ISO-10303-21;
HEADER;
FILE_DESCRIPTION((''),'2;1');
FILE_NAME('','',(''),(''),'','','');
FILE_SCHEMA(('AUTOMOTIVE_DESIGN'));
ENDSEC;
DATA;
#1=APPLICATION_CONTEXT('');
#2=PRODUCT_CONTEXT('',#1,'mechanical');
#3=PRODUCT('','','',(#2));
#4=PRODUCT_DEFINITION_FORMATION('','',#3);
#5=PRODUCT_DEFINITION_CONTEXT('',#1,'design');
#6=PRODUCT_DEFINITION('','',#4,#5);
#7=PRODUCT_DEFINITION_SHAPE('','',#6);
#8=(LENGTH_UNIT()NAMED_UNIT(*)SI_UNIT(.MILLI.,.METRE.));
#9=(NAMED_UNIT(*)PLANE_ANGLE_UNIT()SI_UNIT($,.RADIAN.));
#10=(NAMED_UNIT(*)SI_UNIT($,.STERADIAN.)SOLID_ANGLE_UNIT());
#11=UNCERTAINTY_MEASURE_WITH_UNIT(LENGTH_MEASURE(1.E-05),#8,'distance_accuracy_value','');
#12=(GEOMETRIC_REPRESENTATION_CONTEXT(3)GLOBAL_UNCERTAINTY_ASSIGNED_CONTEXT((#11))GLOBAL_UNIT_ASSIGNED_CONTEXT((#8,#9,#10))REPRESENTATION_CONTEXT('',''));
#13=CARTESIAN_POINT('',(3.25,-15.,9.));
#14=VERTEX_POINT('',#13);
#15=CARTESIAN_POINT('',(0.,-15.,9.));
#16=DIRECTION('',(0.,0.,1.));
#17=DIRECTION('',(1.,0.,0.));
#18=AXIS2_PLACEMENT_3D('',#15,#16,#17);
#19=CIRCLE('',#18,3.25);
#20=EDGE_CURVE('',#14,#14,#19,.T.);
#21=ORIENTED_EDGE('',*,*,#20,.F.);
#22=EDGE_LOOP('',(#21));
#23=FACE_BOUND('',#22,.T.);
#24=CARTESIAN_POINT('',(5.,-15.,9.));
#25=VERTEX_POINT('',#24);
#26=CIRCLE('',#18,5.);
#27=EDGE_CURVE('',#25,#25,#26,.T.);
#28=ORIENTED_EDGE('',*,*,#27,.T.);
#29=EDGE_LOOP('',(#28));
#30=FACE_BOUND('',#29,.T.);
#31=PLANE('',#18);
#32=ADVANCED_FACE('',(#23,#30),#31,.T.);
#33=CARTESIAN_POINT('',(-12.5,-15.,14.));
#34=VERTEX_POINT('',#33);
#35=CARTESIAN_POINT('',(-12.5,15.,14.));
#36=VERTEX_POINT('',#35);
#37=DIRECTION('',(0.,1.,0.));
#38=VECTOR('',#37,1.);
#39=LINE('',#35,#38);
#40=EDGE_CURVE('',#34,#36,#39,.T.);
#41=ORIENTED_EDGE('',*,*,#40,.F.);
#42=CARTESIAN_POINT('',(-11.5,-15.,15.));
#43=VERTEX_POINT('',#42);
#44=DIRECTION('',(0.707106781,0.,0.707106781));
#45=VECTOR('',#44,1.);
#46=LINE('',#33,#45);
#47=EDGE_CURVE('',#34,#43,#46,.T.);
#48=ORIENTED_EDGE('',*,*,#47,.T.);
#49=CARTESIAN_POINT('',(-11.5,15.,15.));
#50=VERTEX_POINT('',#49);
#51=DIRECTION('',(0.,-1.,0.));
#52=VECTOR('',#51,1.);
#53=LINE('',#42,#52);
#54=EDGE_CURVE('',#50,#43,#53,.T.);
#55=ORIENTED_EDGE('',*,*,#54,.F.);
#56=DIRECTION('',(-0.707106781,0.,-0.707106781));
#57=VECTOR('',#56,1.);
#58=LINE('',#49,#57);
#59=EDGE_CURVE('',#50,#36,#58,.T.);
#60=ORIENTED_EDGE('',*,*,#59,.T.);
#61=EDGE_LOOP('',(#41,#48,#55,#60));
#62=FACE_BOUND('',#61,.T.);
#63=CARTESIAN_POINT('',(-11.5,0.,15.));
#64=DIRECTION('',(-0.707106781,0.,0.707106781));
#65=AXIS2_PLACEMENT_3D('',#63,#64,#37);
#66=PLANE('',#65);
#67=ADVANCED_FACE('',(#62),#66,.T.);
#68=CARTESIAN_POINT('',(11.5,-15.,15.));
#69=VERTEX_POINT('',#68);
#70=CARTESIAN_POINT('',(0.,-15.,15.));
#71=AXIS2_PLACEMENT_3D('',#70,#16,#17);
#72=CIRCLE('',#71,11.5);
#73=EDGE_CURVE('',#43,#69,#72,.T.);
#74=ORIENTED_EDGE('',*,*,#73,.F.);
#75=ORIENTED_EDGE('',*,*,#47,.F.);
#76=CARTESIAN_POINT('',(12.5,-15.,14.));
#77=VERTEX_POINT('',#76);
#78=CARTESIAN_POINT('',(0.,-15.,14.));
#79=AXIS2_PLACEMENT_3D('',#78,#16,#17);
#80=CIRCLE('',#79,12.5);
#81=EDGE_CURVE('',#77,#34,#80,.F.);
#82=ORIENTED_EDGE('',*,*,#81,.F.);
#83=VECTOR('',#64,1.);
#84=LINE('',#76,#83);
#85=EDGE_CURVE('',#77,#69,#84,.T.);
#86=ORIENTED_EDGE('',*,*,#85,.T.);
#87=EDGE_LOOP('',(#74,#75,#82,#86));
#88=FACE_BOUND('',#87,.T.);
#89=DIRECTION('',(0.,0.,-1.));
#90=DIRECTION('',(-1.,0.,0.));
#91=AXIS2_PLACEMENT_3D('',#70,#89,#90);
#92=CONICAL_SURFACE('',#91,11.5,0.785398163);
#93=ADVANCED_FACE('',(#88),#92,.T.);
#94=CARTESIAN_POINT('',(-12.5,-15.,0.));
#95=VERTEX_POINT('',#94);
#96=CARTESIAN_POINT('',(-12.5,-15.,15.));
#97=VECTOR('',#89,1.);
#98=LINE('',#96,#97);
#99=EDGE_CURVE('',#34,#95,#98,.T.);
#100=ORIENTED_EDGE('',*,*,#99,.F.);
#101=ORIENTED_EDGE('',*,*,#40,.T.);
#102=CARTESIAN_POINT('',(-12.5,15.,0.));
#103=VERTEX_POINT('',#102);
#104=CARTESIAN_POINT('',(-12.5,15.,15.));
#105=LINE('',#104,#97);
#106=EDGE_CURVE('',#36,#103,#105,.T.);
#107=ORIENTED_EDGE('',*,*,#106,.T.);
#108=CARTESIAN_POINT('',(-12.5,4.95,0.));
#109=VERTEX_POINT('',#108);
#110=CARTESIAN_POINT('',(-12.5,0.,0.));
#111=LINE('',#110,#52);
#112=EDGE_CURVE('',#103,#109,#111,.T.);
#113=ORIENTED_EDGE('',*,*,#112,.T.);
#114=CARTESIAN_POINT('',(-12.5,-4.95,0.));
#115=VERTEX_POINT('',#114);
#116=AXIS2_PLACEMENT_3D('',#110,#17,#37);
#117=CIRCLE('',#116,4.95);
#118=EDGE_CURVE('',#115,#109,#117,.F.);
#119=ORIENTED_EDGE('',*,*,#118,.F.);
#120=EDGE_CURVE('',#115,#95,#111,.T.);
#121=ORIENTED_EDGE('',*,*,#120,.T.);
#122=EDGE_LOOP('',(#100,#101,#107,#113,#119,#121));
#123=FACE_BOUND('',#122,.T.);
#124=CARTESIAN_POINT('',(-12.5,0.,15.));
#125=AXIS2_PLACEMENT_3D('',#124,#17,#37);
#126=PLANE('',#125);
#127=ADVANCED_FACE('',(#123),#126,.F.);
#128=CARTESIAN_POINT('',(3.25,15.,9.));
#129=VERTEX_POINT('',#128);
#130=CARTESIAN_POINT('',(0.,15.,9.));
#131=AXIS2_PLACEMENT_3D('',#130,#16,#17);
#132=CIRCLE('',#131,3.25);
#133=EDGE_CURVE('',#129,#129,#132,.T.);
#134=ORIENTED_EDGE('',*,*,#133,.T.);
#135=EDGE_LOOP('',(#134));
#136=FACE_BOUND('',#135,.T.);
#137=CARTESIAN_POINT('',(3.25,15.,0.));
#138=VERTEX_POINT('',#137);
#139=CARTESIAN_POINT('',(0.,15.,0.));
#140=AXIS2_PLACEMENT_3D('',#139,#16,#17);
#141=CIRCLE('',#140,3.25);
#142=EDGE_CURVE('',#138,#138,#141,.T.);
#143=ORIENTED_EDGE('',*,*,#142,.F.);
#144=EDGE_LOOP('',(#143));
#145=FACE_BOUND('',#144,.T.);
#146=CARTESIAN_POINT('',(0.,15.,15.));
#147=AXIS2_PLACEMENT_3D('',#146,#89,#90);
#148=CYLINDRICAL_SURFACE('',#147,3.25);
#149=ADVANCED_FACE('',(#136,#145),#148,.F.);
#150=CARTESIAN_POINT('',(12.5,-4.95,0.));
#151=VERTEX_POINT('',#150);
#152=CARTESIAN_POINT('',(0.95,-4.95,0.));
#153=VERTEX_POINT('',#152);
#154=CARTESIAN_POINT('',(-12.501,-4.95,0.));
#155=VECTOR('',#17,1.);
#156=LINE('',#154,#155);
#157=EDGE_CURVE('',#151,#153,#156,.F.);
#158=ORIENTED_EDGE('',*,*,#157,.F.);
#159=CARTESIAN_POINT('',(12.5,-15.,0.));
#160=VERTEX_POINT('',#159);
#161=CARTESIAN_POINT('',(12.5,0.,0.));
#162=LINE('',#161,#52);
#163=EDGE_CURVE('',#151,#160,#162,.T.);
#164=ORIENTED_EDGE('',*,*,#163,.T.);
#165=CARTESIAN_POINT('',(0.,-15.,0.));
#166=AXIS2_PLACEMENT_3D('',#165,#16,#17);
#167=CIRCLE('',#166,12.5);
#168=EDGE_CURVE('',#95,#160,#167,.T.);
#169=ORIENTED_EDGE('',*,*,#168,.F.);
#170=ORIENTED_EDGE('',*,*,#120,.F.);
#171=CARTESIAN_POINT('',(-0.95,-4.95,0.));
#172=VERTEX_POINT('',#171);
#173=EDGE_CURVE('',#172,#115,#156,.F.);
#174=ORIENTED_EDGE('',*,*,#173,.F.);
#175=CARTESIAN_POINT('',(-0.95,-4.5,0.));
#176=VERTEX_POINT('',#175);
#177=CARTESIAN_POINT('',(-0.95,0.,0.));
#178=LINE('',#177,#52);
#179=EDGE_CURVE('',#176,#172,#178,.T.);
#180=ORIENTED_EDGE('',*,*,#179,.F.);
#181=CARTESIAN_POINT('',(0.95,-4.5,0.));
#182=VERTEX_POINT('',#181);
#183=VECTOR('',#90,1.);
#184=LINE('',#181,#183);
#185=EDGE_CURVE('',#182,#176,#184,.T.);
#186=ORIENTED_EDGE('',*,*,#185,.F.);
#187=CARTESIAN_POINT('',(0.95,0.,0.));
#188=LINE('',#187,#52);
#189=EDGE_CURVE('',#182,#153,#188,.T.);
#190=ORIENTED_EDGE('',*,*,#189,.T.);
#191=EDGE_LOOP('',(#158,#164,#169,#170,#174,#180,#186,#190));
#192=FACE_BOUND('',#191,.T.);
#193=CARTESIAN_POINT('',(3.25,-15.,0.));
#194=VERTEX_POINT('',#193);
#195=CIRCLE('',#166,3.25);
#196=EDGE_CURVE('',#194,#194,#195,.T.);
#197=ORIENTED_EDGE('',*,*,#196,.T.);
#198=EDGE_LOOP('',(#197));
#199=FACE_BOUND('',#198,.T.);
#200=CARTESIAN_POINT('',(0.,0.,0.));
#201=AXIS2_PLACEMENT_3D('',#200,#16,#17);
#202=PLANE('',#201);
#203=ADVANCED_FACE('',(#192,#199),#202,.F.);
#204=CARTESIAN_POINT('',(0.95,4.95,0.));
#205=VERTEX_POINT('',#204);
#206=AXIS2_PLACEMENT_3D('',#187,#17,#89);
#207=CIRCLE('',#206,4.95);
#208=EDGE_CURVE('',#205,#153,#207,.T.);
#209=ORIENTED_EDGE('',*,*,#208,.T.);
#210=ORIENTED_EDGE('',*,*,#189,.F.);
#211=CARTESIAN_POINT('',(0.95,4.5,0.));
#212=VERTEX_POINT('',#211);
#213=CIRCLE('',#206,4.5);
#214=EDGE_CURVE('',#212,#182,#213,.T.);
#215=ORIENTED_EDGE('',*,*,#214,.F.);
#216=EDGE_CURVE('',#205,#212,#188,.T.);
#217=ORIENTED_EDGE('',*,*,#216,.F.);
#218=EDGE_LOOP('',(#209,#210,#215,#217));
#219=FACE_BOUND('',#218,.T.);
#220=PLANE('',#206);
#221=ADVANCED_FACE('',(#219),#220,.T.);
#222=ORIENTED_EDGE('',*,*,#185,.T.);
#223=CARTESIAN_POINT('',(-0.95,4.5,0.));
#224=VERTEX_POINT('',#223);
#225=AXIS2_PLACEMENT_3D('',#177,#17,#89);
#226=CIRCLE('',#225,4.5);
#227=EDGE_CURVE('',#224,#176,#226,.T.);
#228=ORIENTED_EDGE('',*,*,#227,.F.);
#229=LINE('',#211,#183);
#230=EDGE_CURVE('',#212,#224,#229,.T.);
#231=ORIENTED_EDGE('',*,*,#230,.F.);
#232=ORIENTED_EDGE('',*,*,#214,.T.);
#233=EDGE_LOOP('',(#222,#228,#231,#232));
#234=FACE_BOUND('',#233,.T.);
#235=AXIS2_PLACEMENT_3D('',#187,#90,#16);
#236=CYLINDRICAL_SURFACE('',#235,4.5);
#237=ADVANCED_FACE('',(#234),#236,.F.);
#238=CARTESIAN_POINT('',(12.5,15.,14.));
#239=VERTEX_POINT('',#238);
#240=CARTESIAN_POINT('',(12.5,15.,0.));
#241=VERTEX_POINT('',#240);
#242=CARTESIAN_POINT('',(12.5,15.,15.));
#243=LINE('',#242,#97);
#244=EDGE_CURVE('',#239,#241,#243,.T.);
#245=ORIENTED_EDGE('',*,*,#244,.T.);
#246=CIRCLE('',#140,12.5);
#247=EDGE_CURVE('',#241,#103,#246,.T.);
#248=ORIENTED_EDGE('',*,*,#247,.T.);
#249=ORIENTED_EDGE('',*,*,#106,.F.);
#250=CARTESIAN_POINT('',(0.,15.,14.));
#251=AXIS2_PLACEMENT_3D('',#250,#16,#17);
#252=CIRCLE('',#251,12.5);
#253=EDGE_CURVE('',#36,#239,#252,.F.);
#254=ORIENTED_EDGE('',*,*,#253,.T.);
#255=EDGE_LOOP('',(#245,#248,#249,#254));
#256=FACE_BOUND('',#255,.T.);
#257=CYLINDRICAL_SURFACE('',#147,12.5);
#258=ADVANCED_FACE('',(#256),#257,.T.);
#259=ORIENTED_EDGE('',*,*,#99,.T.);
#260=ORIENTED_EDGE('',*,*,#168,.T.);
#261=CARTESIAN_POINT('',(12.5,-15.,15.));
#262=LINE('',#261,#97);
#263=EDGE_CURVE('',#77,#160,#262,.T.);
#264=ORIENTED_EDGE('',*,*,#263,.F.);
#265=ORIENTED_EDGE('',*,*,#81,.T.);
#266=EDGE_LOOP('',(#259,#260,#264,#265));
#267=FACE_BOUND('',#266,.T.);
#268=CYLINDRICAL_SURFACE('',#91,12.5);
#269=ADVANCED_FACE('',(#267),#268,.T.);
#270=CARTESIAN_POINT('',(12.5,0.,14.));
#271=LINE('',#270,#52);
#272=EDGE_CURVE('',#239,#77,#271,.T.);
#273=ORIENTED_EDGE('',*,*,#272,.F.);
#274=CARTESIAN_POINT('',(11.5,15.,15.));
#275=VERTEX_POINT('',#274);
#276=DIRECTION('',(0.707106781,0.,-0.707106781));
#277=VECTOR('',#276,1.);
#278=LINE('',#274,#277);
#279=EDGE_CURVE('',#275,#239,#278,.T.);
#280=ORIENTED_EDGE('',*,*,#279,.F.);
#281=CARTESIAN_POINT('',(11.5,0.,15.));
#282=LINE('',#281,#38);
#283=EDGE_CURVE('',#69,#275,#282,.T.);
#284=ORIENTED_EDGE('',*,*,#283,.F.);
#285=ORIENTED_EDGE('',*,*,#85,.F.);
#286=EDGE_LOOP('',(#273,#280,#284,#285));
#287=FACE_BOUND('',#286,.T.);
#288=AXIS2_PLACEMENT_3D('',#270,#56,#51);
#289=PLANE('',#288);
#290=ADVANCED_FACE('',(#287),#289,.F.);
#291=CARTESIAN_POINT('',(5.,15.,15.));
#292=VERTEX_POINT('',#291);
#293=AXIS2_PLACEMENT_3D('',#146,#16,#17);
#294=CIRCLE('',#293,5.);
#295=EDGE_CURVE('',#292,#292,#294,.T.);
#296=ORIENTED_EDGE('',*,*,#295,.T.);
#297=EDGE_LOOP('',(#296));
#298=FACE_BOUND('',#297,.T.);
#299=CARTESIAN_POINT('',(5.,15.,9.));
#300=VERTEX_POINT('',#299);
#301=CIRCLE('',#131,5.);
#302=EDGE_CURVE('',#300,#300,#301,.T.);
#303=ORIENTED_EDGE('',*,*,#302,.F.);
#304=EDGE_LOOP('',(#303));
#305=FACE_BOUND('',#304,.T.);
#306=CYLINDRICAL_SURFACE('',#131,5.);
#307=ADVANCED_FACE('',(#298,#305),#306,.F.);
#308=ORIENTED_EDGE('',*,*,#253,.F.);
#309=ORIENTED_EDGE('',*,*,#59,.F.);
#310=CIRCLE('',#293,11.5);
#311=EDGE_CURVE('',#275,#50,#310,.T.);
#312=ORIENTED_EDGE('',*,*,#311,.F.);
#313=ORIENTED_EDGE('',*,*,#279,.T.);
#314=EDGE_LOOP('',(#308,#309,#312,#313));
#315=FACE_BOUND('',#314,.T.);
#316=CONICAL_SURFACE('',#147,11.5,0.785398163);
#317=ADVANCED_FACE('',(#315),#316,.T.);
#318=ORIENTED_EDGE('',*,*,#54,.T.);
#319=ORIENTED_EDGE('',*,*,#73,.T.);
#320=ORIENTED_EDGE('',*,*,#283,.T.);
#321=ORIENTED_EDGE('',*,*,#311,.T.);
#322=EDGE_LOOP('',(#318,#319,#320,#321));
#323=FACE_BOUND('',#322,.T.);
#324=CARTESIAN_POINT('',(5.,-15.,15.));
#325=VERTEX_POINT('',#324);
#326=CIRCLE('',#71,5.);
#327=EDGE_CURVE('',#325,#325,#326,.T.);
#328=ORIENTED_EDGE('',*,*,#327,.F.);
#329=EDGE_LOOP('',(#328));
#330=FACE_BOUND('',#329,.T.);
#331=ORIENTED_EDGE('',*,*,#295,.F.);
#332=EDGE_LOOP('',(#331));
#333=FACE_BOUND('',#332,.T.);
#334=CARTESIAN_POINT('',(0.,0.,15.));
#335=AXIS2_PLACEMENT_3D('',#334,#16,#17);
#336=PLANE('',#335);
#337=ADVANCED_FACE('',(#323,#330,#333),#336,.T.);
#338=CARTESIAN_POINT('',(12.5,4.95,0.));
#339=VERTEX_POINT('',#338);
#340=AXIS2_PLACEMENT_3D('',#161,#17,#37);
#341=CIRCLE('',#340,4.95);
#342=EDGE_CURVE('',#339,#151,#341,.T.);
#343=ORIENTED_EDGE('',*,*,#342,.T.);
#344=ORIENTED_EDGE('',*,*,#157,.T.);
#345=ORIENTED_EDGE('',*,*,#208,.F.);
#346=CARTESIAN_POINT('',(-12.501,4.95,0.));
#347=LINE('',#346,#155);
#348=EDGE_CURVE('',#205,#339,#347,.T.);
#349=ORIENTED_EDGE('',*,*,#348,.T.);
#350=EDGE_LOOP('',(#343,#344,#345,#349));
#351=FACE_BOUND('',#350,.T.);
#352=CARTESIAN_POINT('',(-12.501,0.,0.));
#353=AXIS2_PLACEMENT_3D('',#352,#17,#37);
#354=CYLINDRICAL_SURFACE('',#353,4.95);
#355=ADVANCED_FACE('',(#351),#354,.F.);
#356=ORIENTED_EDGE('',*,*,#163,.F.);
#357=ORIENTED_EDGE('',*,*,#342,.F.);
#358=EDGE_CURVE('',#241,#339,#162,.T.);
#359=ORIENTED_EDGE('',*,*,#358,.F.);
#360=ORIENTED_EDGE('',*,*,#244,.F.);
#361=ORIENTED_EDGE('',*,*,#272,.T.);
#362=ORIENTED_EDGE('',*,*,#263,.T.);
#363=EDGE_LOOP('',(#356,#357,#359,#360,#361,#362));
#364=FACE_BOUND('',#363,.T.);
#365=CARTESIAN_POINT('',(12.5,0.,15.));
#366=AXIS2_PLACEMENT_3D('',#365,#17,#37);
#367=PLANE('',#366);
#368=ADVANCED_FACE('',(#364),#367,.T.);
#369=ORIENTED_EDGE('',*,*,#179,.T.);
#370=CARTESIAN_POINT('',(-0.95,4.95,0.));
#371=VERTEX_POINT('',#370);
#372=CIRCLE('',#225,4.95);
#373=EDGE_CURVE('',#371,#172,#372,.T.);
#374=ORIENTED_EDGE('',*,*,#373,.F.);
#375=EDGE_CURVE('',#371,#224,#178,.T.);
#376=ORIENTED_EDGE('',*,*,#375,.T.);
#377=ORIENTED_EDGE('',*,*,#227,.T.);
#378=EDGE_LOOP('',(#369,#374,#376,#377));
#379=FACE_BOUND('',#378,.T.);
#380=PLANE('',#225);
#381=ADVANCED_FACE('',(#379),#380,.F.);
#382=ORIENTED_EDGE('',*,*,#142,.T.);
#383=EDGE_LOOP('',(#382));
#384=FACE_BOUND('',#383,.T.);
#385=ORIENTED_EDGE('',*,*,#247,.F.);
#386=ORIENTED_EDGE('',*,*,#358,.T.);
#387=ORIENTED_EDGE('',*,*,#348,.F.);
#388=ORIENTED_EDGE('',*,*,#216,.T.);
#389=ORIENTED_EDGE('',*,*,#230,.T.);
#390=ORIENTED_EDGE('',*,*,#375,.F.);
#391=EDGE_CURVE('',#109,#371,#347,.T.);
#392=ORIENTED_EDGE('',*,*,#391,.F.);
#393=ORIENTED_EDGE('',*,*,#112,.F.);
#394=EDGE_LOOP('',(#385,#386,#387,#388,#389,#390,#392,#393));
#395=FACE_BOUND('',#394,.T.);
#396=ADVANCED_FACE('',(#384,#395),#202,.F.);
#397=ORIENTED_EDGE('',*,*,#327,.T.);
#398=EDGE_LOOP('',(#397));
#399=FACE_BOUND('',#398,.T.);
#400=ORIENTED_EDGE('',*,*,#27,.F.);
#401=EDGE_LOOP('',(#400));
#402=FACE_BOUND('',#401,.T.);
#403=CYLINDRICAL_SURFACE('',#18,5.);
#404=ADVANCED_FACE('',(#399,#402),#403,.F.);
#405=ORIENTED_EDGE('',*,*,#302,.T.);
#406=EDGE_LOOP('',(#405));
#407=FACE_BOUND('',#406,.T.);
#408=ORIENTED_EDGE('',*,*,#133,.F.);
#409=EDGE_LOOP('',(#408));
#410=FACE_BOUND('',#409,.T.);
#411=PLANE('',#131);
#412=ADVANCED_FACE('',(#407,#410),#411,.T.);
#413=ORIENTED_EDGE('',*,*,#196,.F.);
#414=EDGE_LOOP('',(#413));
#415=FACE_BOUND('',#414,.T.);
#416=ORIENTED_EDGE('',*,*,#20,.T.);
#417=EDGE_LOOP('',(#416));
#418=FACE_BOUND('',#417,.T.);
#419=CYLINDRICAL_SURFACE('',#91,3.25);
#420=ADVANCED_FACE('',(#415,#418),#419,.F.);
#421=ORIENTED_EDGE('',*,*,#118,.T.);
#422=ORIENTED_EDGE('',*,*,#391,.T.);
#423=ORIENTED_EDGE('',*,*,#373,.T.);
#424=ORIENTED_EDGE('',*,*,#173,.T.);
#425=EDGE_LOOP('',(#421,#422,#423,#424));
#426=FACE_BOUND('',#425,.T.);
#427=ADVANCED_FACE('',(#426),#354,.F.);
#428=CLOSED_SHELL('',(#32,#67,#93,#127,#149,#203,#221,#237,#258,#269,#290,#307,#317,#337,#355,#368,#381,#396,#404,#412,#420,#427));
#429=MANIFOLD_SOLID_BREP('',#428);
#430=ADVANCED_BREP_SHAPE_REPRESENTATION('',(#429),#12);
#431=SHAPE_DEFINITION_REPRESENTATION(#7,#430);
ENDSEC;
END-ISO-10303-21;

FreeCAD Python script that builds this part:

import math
import FreeCAD as App
import Part
import Sketcher
from FreeCAD import Vector


def edges_at(feature, points):
    """Names of the edges that pass closest to the given points."""
    edges = feature.Shape.Edges
    near = lambda p: min(range(len(edges)), key=lambda i: edges[i].distToShape(Part.Vertex(*p))[0])
    return sorted({f"Edge{near(p) + 1}" for p in points})

doc = App.newDocument("Part")
params = doc.addObject("Spreadsheet::Sheet", "Params")
for row, (alias, value) in enumerate([
    ("sketch1_diameter", "6.5 mm"),
    ("sketch1_radius", "12.5 mm"),
    ("sketch1_height", "30 mm"),
    ("pad1_length", "15 mm"),
    ("sketch2_diameter", "9.9 mm"),
    ("chamfer_size", "1 mm"),
    ("sketch3_diameter", "10 mm"),
    ("pocket2_length", "6 mm"),
    ("sketch4_radius", "4.5 mm"),
    ("sketch4_radius2", "4.95 mm"),
    ("pad2_length", "1.9 mm"),
], start=1):
    params.set(f"A{row}", alias)
    params.set(f"B{row}", "=" + value)
    params.setAlias(f"B{row}", alias)

body = doc.addObject("PartDesign::Body", "Body")

sketch1 = body.newObject("Sketcher::SketchObject", "Sketch")
sketch1.AttachmentSupport = (doc.getObject("XY_Plane"), [""])
sketch1.MapMode = "FlatFace"
sketch1.addGeometry(Part.LineSegment(Vector(-12.5, 15, 0), Vector(-12.5, -15, 0)), False)
sketch1.addGeometry(Part.ArcOfCircle(Part.Circle(Vector(0, -15, 0), Vector(0, 0, 1), 12.5), math.radians(180), math.radians(360)), False)
sketch1.addGeometry(Part.LineSegment(Vector(12.5, -15, 0), Vector(12.5, 15, 0)), False)
sketch1.addGeometry(Part.ArcOfCircle(Part.Circle(Vector(0, 15, 0), Vector(0, 0, 1), 12.5), math.radians(0), math.radians(180)), False)
sketch1.addGeometry(Part.Circle(Vector(0, -15, 0), Vector(0, 0, 1), 3.2), False)
sketch1.addGeometry(Part.Circle(Vector(0, 15, 0), Vector(0, 0, 1), 3.2), False)
sketch1.addConstraint(Sketcher.Constraint("Tangent", 0, 2, 1, 1))
sketch1.addConstraint(Sketcher.Constraint("Tangent", 1, 2, 2, 1))
sketch1.addConstraint(Sketcher.Constraint("Tangent", 2, 2, 3, 1))
sketch1.addConstraint(Sketcher.Constraint("Tangent", 3, 2, 0, 1))
sketch1.addConstraint(Sketcher.Constraint("Vertical", 0))
sketch1.addConstraint(Sketcher.Constraint("Vertical", 2))
sketch1.addConstraint(Sketcher.Constraint("Coincident", 4, 3, 1, 3))
sketch1.addConstraint(Sketcher.Constraint("Coincident", 5, 3, 3, 3))
sketch1.addConstraint(Sketcher.Constraint("Equal", 4, 5))
sketch1.addConstraint(Sketcher.Constraint("Symmetric", 1, 3, 3, 3, -1, 1))
sketch1.addConstraint(Sketcher.Constraint("Diameter", 4, 6.5))
sketch1.addConstraint(Sketcher.Constraint("Radius", 1, 12.5))
sketch1.addConstraint(Sketcher.Constraint("DistanceY", 0, 2, 0, 1, 30.0))
sketch1.setExpression("Constraints[10]", "Params.sketch1_diameter")
sketch1.setExpression("Constraints[11]", "Params.sketch1_radius")
sketch1.setExpression("Constraints[12]", "Params.sketch1_height")
pad1 = body.newObject("PartDesign::Pad", "Pad")
pad1.Profile = sketch1
pad1.setExpression("Length", "Params.pad1_length")

sketch2 = body.newObject("Sketcher::SketchObject", "Sketch001")
sketch2.AttachmentSupport = (doc.getObject("YZ_Plane"), [""])
sketch2.MapMode = "FlatFace"
sketch2.AttachmentOffset = App.Placement(Vector(0, 0, 12.5), App.Rotation())
sketch2.addGeometry(Part.Circle(Vector(0, 0, 0), Vector(0, 0, 1), 5), False)
sketch2.addConstraint(Sketcher.Constraint("Coincident", 0, 3, -1, 1))
sketch2.addConstraint(Sketcher.Constraint("Diameter", 0, 9.9))
sketch2.setExpression("Constraints[1]", "Params.sketch2_diameter")
pocket1 = body.newObject("PartDesign::Pocket", "Pocket")
pocket1.Profile = sketch2
pocket1.Type = "UpToFirst"
doc.recompute()

chamfer = body.newObject("PartDesign::Chamfer", "Chamfer")
chamfer.Base = (pocket1, edges_at(pocket1, [
    (-12.5, 0, 15),
    (0, -27.5, 15),
    (12.5, 0, 15),
    (0, 27.5, 15),
]))
chamfer.setExpression("Size", "Params.chamfer_size")

sketch3 = body.newObject("Sketcher::SketchObject", "Sketch002")
sketch3.AttachmentSupport = (doc.getObject("XY_Plane"), [""])
sketch3.MapMode = "FlatFace"
sketch3.AttachmentOffset = App.Placement(Vector(0, 0, 15), App.Rotation())
sketch3.addGeometry(Part.Circle(Vector(0, 15, 0), Vector(0, 0, 1), 5), False)
sketch3.addGeometry(Part.Circle(Vector(0, -15, 0), Vector(0, 0, 1), 5), False)
sketch3.addConstraint(Sketcher.Constraint("Equal", 0, 1))
sketch3.addConstraint(Sketcher.Constraint("Symmetric", 0, 3, 1, 3, -1, 1))
sketch3.addConstraint(Sketcher.Constraint("PointOnObject", 0, 3, -2))
sketch3.addConstraint(Sketcher.Constraint("Diameter", 0, 10.0))
sketch3.addConstraint(Sketcher.Constraint("DistanceY", -1, 1, 0, 3, 15.0))
sketch3.setExpression("Constraints[3]", "Params.sketch3_diameter")
pocket2 = body.newObject("PartDesign::Pocket", "Pocket001")
pocket2.Profile = sketch3
pocket2.setExpression("Length", "Params.pocket2_length")

sketch4 = body.newObject("Sketcher::SketchObject", "Sketch003")
sketch4.AttachmentSupport = (doc.getObject("YZ_Plane"), [""])
sketch4.MapMode = "FlatFace"
sketch4.addGeometry(Part.LineSegment(Vector(4.5, 0, 0), Vector(4.95, 0, 0)), False)
sketch4.addGeometry(Part.ArcOfCircle(Part.Circle(Vector(0, 0, 0), Vector(0, 0, 1), 4.95), math.radians(0), math.radians(180)), False)
sketch4.addGeometry(Part.LineSegment(Vector(-4.95, 0, 0), Vector(-4.5, 0, 0)), False)
sketch4.addGeometry(Part.ArcOfCircle(Part.Circle(Vector(0, 0, 0), Vector(0, 0, 1), 4.5), math.radians(0), math.radians(180)), False)
sketch4.addConstraint(Sketcher.Constraint("Coincident", 0, 2, 1, 1))
sketch4.addConstraint(Sketcher.Constraint("Coincident", 1, 2, 2, 1))
sketch4.addConstraint(Sketcher.Constraint("Coincident", 2, 2, 3, 2))
sketch4.addConstraint(Sketcher.Constraint("Coincident", 3, 1, 0, 1))
sketch4.addConstraint(Sketcher.Constraint("Horizontal", 0))
sketch4.addConstraint(Sketcher.Constraint("Horizontal", 2))
sketch4.addConstraint(Sketcher.Constraint("Coincident", 1, 3, -1, 1))
sketch4.addConstraint(Sketcher.Constraint("Coincident", 3, 3, -1, 1))
sketch4.addConstraint(Sketcher.Constraint("PointOnObject", 0, 2, -1))
sketch4.addConstraint(Sketcher.Constraint("PointOnObject", 1, 2, -1))
sketch4.addConstraint(Sketcher.Constraint("Radius", 3, 4.5))
sketch4.addConstraint(Sketcher.Constraint("Radius", 1, 4.95))
sketch4.setExpression("Constraints[10]", "Params.sketch4_radius")
sketch4.setExpression("Constraints[11]", "Params.sketch4_radius2")
pad2 = body.newObject("PartDesign::Pad", "Pad001")
pad2.Profile = sketch4
pad2.setExpression("Length", "Params.pad2_length")
pad2.Midplane = True

doc.recompute()
